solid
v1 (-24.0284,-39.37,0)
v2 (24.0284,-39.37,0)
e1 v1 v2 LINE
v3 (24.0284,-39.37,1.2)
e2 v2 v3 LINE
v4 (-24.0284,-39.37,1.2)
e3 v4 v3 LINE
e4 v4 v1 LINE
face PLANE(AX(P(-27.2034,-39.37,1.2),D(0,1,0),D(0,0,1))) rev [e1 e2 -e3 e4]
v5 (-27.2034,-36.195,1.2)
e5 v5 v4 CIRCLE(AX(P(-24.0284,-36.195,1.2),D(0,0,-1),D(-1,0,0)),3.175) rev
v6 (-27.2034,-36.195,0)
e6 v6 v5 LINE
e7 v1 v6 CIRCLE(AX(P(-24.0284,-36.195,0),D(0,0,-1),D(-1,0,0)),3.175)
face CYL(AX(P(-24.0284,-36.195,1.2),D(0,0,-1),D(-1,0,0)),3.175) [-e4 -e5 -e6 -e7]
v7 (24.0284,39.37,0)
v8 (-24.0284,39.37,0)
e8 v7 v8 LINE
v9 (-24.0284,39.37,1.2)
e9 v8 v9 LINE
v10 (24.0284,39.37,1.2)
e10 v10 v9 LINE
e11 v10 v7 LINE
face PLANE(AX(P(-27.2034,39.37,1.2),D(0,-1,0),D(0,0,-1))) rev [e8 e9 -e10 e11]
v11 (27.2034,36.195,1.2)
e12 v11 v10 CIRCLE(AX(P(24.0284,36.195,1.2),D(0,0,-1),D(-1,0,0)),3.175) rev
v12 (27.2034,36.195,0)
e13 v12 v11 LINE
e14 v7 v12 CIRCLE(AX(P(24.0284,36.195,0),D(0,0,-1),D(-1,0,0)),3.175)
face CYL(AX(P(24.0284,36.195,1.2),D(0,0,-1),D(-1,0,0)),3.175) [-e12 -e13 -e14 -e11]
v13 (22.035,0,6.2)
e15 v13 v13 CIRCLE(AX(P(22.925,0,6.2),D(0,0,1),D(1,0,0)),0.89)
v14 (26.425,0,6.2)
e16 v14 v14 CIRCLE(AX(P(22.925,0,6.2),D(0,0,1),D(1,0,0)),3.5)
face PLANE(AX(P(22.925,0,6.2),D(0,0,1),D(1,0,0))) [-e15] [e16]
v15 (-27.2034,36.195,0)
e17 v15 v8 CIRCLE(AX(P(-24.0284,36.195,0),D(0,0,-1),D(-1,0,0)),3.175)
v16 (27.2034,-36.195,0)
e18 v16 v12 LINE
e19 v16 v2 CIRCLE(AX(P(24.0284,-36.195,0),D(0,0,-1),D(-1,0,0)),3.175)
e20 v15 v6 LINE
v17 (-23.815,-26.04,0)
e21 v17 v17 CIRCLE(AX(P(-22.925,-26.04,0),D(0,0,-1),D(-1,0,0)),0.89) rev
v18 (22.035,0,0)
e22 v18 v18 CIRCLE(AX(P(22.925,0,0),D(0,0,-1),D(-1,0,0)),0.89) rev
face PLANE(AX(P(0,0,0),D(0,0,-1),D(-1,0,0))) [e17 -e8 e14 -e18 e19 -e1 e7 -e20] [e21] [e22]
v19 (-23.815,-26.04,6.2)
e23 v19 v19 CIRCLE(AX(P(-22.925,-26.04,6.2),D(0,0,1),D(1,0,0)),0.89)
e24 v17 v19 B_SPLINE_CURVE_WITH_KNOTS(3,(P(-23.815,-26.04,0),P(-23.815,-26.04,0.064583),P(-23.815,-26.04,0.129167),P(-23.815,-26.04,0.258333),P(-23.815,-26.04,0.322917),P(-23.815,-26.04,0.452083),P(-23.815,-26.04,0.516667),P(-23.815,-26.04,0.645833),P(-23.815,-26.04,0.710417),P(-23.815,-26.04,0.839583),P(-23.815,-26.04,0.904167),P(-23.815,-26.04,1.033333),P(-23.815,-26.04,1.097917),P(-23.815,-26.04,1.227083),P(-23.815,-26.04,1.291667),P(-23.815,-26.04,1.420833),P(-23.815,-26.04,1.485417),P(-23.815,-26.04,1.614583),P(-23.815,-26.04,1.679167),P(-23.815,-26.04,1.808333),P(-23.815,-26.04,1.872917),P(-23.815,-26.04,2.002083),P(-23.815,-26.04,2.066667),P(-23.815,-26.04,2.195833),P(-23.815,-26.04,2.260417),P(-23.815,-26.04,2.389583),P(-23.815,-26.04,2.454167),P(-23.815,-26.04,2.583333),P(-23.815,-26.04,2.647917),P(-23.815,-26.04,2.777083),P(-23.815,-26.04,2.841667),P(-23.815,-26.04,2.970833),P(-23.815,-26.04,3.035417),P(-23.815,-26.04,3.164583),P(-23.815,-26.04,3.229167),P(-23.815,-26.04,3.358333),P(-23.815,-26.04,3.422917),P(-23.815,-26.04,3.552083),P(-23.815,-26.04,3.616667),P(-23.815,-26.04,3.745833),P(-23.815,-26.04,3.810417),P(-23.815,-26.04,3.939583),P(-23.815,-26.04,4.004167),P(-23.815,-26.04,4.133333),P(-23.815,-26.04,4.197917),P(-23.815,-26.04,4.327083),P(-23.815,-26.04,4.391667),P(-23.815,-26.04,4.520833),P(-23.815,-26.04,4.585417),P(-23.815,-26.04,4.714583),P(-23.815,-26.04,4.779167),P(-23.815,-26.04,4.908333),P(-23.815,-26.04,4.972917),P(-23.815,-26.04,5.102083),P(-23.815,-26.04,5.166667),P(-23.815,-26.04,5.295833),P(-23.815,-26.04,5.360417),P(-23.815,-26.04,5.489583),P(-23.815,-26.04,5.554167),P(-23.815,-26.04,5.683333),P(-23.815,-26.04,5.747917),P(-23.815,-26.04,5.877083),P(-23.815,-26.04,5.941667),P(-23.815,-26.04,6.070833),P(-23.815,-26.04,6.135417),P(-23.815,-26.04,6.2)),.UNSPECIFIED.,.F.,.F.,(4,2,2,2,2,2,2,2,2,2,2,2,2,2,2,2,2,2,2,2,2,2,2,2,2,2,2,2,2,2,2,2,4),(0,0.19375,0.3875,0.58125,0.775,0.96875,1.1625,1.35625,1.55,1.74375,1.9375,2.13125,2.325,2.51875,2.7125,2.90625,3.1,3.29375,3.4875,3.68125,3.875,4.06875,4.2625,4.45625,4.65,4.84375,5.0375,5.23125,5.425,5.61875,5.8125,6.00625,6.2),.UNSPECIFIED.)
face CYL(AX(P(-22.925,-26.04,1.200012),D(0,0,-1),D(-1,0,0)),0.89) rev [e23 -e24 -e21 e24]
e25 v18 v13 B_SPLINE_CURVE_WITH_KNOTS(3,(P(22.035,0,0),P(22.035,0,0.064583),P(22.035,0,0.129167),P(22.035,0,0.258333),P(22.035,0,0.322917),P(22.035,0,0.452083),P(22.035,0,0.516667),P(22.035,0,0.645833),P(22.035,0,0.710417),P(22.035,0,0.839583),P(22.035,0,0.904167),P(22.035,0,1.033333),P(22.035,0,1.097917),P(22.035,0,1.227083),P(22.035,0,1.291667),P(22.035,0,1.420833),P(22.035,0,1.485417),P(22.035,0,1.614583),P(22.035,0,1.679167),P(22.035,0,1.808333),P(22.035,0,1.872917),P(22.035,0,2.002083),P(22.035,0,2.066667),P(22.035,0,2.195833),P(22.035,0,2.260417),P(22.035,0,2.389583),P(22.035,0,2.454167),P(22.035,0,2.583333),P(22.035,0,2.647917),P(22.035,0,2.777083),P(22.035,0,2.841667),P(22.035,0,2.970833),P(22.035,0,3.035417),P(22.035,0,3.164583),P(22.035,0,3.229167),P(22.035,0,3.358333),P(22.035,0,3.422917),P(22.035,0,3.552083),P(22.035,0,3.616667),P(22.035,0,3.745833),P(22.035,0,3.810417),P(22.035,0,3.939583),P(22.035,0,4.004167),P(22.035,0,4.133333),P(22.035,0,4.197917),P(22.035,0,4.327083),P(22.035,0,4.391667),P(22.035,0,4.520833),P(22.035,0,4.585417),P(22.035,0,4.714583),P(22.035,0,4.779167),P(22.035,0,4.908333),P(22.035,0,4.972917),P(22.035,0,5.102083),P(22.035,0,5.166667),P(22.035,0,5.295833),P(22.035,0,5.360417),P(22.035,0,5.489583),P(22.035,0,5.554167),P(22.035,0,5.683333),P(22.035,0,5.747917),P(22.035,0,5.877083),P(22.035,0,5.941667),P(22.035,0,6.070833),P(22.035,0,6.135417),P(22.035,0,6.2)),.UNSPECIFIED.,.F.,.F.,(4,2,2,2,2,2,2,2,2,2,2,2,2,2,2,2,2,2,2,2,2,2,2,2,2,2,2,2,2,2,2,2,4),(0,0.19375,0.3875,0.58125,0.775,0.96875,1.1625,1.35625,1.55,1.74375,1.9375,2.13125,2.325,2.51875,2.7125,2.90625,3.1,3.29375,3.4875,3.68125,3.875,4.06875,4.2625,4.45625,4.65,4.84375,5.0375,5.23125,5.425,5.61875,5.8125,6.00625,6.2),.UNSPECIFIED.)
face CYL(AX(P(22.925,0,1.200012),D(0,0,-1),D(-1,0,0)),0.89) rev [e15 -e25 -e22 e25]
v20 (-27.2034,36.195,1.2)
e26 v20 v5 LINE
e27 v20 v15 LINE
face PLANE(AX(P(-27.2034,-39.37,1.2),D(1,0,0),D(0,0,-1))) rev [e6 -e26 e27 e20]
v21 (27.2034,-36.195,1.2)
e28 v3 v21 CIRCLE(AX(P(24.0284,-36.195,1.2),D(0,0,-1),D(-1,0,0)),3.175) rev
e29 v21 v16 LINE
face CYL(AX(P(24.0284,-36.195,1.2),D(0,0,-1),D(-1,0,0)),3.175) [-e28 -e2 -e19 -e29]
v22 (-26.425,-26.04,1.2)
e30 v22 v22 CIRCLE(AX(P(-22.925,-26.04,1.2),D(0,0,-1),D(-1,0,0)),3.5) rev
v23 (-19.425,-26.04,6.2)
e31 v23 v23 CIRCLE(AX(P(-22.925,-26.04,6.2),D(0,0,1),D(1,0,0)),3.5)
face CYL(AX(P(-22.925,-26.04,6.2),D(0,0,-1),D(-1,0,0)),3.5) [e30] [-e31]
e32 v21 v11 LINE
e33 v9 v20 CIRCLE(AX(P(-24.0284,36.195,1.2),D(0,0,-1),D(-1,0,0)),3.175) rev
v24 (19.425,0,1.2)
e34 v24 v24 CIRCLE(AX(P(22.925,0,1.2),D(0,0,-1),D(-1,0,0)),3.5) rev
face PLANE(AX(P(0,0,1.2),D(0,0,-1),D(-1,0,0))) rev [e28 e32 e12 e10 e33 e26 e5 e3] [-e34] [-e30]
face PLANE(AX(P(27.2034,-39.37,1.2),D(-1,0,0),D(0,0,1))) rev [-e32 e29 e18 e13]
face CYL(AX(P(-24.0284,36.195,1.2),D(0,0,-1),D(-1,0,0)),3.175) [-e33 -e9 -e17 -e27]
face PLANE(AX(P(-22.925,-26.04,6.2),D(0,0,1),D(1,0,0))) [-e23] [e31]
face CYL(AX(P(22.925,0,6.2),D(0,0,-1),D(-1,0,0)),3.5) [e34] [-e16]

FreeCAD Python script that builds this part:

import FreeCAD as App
import Part
import Sketcher
from FreeCAD import Vector
Q = App.Units.Quantity


def edges_at(feature, points):
    """Names of the edges that pass closest to the given points."""
    edges = feature.Shape.Edges
    near = lambda p: min(range(len(edges)), key=lambda i: edges[i].distToShape(Part.Vertex(*p))[0])
    return sorted({f"Edge{near(p) + 1}" for p in points})


def add_polygon(sketch, points):
    """Adds a closed chain of lines whose ends are joined by coincident constraints."""
    first, n = sketch.GeometryCount, len(points)
    for a, b in zip(points, points[1:] + points[:1]):
        sketch.addGeometry(Part.LineSegment(App.Vector(*a, 0), App.Vector(*b, 0)), False)
    for i in range(n):
        sketch.addConstraint(Sketcher.Constraint("Coincident", first + i, 2, first + (i + 1) % n, 1))

doc = App.newDocument("Part")
body = doc.addObject("PartDesign::Body", "Body")

# Sketch on XY plane
sketch1 = doc.addObject("Sketcher::SketchObject", "Sketch")
body.addObject(sketch1)
sketch1.AttachmentSupport = (doc.XY_Plane, [""])
sketch1.MapMode = "FlatFace"
add_polygon(sketch1, [(-27, 39), (-27, -39), (27, -39), (27, 39)])  # lines 0-3
sketch1.addConstraint([
    Sketcher.Constraint("Vertical", 0),
    Sketcher.Constraint("Horizontal", 1),
    Sketcher.Constraint("Vertical", 2),
    Sketcher.Constraint("Horizontal", 3),
    Sketcher.Constraint("Symmetric", 0, 2, 2, 2, -1, 1),
    Sketcher.Constraint("DistanceY", 0, 2, 0, 1, Q("78.74 mm")),
    Sketcher.Constraint("DistanceX", 1, 1, 1, 2, Q("54.4068 mm")),
])
pad1 = doc.addObject("PartDesign::Pad", "Pad")
body.addObject(pad1)
pad1.Profile = sketch1
pad1.Length = 1.2
doc.recompute()

fillet = doc.addObject("PartDesign::Fillet", "Fillet")
body.addObject(fillet)
fillet.Base = (pad1, edges_at(pad1, [
    (27.203, -39.37, 0.6),
    (-27.203, -39.37, 0.6),
    (-27.203, 39.37, 0.6),
    (27.203, 39.37, 0.6),
]))
fillet.Radius = 3.175

# Sketch on XY plane
sketch2 = doc.addObject("Sketcher::SketchObject", "Sketch001")
body.addObject(sketch2)
sketch2.AttachmentSupport = (doc.XY_Plane, [""])
sketch2.MapMode = "FlatFace"
sketch2.AttachmentOffset = App.Placement(Vector(0, 0, 1.2), App.Rotation())
sketch2.addGeometry(Part.Circle(Vector(-22.9, -26, 0), Vector(0, 0, 1), 0.9), False)
sketch2.addConstraint([
    Sketcher.Constraint("Diameter", 0, Q("1.78 mm")),
    Sketcher.Constraint("DistanceY", 0, 3, -1, 1, Q("26.04 mm")),
    Sketcher.Constraint("DistanceX", 0, 3, -1, 1, Q("22.925 mm")),
])
pocket1 = doc.addObject("PartDesign::Pocket", "Pocket")
body.addObject(pocket1)
pocket1.Profile = sketch2
pocket1.Type = "UpToFirst"

# Sketch on XY plane
sketch3 = doc.addObject("Sketcher::SketchObject", "Sketch002")
body.addObject(sketch3)
sketch3.AttachmentSupport = (doc.XY_Plane, [""])
sketch3.MapMode = "FlatFace"
sketch3.AttachmentOffset = App.Placement(Vector(0, 0, 1.2), App.Rotation())
sketch3.addGeometry(Part.Circle(Vector(22.9, 0, 0), Vector(0, 0, 1), 0.9), False)
sketch3.addConstraint([
    Sketcher.Constraint("PointOnObject", 0, 3, -1),
    Sketcher.Constraint("Diameter", 0, Q("1.78 mm")),
    Sketcher.Constraint("DistanceX", -1, 1, 0, 3, Q("22.925 mm")),
])
pocket2 = doc.addObject("PartDesign::Pocket", "Pocket001")
body.addObject(pocket2)
pocket2.Profile = sketch3
pocket2.Type = "UpToFirst"

# Sketch on XY plane
sketch4 = doc.addObject("Sketcher::SketchObject", "Sketch003")
body.addObject(sketch4)
sketch4.AttachmentSupport = (doc.XY_Plane, [""])
sketch4.MapMode = "FlatFace"
sketch4.AttachmentOffset = App.Placement(Vector(0, 0, 1.2), App.Rotation())
sketch4.addGeometry([
    Part.Circle(Vector(-22.9, -26, 0), Vector(0, 0, 1), 0.9),
    Part.Circle(Vector(22.9, 0, 0), Vector(0, 0, 1), 0.9),
], False)
sketch4.addConstraint([
    Sketcher.Constraint("Equal", 0, 1),
    Sketcher.Constraint("PointOnObject", 1, 3, -1),
    Sketcher.Constraint("Diameter", 0, Q("1.78 mm")),
    Sketcher.Constraint("DistanceY", 0, 3, -1, 1, Q("26.04 mm")),
    Sketcher.Constraint("DistanceX", 0, 3, 1, 3, Q("45.85 mm")),
    Sketcher.Constraint("DistanceX", 0, 3, -1, 1, Q("22.925 mm")),
])
pocket3 = doc.addObject("PartDesign::Pocket", "Pocket002")
body.addObject(pocket3)
pocket3.Profile = sketch4
pocket3.Length = 48.869216
pocket3.Reversed = True

# Sketch on XY plane
sketch5 = doc.addObject("Sketcher::SketchObject", "Sketch004")
body.addObject(sketch5)
sketch5.AttachmentSupport = (doc.XY_Plane, [""])
sketch5.MapMode = "FlatFace"
sketch5.AttachmentOffset = App.Placement(Vector(0, 0, 6.2), App.Rotation())
sketch5.addGeometry([
    Part.Circle(Vector(-22.9, -26, 0), Vector(0, 0, 1), 3.5),
    Part.Circle(Vector(-22.9, -26, 0), Vector(0, 0, 1), 0.9),
    Part.Circle(Vector(22.9, 0, 0), Vector(0, 0, 1), 3.5),
    Part.Circle(Vector(22.9, 0, 0), Vector(0, 0, 1), 0.9),
], False)
sketch5.addConstraint([
    Sketcher.Constraint("Coincident", 1, 3, 0, 3),
    Sketcher.Constraint("Coincident", 3, 3, 2, 3),
    Sketcher.Constraint("Equal", 0, 2),
    Sketcher.Constraint("Equal", 1, 3),
    Sketcher.Constraint("PointOnObject", 2, 3, -1),
    Sketcher.Constraint("Diameter", 0, Q("7 mm")),
    Sketcher.Constraint("Diameter", 1, Q("1.78 mm")),
    Sketcher.Constraint("DistanceY", 0, 3, -1, 1, Q("26.04 mm")),
    Sketcher.Constraint("DistanceX", 0, 3, 2, 3, Q("45.85 mm")),
    Sketcher.Constraint("DistanceX", 0, 3, -1, 1, Q("22.925 mm")),
])
pad2 = doc.addObject("PartDesign::Pad", "Pad001")
body.addObject(pad2)
pad2.Profile = sketch5
pad2.Length = 5
pad2.Reversed = True

doc.recompute()
